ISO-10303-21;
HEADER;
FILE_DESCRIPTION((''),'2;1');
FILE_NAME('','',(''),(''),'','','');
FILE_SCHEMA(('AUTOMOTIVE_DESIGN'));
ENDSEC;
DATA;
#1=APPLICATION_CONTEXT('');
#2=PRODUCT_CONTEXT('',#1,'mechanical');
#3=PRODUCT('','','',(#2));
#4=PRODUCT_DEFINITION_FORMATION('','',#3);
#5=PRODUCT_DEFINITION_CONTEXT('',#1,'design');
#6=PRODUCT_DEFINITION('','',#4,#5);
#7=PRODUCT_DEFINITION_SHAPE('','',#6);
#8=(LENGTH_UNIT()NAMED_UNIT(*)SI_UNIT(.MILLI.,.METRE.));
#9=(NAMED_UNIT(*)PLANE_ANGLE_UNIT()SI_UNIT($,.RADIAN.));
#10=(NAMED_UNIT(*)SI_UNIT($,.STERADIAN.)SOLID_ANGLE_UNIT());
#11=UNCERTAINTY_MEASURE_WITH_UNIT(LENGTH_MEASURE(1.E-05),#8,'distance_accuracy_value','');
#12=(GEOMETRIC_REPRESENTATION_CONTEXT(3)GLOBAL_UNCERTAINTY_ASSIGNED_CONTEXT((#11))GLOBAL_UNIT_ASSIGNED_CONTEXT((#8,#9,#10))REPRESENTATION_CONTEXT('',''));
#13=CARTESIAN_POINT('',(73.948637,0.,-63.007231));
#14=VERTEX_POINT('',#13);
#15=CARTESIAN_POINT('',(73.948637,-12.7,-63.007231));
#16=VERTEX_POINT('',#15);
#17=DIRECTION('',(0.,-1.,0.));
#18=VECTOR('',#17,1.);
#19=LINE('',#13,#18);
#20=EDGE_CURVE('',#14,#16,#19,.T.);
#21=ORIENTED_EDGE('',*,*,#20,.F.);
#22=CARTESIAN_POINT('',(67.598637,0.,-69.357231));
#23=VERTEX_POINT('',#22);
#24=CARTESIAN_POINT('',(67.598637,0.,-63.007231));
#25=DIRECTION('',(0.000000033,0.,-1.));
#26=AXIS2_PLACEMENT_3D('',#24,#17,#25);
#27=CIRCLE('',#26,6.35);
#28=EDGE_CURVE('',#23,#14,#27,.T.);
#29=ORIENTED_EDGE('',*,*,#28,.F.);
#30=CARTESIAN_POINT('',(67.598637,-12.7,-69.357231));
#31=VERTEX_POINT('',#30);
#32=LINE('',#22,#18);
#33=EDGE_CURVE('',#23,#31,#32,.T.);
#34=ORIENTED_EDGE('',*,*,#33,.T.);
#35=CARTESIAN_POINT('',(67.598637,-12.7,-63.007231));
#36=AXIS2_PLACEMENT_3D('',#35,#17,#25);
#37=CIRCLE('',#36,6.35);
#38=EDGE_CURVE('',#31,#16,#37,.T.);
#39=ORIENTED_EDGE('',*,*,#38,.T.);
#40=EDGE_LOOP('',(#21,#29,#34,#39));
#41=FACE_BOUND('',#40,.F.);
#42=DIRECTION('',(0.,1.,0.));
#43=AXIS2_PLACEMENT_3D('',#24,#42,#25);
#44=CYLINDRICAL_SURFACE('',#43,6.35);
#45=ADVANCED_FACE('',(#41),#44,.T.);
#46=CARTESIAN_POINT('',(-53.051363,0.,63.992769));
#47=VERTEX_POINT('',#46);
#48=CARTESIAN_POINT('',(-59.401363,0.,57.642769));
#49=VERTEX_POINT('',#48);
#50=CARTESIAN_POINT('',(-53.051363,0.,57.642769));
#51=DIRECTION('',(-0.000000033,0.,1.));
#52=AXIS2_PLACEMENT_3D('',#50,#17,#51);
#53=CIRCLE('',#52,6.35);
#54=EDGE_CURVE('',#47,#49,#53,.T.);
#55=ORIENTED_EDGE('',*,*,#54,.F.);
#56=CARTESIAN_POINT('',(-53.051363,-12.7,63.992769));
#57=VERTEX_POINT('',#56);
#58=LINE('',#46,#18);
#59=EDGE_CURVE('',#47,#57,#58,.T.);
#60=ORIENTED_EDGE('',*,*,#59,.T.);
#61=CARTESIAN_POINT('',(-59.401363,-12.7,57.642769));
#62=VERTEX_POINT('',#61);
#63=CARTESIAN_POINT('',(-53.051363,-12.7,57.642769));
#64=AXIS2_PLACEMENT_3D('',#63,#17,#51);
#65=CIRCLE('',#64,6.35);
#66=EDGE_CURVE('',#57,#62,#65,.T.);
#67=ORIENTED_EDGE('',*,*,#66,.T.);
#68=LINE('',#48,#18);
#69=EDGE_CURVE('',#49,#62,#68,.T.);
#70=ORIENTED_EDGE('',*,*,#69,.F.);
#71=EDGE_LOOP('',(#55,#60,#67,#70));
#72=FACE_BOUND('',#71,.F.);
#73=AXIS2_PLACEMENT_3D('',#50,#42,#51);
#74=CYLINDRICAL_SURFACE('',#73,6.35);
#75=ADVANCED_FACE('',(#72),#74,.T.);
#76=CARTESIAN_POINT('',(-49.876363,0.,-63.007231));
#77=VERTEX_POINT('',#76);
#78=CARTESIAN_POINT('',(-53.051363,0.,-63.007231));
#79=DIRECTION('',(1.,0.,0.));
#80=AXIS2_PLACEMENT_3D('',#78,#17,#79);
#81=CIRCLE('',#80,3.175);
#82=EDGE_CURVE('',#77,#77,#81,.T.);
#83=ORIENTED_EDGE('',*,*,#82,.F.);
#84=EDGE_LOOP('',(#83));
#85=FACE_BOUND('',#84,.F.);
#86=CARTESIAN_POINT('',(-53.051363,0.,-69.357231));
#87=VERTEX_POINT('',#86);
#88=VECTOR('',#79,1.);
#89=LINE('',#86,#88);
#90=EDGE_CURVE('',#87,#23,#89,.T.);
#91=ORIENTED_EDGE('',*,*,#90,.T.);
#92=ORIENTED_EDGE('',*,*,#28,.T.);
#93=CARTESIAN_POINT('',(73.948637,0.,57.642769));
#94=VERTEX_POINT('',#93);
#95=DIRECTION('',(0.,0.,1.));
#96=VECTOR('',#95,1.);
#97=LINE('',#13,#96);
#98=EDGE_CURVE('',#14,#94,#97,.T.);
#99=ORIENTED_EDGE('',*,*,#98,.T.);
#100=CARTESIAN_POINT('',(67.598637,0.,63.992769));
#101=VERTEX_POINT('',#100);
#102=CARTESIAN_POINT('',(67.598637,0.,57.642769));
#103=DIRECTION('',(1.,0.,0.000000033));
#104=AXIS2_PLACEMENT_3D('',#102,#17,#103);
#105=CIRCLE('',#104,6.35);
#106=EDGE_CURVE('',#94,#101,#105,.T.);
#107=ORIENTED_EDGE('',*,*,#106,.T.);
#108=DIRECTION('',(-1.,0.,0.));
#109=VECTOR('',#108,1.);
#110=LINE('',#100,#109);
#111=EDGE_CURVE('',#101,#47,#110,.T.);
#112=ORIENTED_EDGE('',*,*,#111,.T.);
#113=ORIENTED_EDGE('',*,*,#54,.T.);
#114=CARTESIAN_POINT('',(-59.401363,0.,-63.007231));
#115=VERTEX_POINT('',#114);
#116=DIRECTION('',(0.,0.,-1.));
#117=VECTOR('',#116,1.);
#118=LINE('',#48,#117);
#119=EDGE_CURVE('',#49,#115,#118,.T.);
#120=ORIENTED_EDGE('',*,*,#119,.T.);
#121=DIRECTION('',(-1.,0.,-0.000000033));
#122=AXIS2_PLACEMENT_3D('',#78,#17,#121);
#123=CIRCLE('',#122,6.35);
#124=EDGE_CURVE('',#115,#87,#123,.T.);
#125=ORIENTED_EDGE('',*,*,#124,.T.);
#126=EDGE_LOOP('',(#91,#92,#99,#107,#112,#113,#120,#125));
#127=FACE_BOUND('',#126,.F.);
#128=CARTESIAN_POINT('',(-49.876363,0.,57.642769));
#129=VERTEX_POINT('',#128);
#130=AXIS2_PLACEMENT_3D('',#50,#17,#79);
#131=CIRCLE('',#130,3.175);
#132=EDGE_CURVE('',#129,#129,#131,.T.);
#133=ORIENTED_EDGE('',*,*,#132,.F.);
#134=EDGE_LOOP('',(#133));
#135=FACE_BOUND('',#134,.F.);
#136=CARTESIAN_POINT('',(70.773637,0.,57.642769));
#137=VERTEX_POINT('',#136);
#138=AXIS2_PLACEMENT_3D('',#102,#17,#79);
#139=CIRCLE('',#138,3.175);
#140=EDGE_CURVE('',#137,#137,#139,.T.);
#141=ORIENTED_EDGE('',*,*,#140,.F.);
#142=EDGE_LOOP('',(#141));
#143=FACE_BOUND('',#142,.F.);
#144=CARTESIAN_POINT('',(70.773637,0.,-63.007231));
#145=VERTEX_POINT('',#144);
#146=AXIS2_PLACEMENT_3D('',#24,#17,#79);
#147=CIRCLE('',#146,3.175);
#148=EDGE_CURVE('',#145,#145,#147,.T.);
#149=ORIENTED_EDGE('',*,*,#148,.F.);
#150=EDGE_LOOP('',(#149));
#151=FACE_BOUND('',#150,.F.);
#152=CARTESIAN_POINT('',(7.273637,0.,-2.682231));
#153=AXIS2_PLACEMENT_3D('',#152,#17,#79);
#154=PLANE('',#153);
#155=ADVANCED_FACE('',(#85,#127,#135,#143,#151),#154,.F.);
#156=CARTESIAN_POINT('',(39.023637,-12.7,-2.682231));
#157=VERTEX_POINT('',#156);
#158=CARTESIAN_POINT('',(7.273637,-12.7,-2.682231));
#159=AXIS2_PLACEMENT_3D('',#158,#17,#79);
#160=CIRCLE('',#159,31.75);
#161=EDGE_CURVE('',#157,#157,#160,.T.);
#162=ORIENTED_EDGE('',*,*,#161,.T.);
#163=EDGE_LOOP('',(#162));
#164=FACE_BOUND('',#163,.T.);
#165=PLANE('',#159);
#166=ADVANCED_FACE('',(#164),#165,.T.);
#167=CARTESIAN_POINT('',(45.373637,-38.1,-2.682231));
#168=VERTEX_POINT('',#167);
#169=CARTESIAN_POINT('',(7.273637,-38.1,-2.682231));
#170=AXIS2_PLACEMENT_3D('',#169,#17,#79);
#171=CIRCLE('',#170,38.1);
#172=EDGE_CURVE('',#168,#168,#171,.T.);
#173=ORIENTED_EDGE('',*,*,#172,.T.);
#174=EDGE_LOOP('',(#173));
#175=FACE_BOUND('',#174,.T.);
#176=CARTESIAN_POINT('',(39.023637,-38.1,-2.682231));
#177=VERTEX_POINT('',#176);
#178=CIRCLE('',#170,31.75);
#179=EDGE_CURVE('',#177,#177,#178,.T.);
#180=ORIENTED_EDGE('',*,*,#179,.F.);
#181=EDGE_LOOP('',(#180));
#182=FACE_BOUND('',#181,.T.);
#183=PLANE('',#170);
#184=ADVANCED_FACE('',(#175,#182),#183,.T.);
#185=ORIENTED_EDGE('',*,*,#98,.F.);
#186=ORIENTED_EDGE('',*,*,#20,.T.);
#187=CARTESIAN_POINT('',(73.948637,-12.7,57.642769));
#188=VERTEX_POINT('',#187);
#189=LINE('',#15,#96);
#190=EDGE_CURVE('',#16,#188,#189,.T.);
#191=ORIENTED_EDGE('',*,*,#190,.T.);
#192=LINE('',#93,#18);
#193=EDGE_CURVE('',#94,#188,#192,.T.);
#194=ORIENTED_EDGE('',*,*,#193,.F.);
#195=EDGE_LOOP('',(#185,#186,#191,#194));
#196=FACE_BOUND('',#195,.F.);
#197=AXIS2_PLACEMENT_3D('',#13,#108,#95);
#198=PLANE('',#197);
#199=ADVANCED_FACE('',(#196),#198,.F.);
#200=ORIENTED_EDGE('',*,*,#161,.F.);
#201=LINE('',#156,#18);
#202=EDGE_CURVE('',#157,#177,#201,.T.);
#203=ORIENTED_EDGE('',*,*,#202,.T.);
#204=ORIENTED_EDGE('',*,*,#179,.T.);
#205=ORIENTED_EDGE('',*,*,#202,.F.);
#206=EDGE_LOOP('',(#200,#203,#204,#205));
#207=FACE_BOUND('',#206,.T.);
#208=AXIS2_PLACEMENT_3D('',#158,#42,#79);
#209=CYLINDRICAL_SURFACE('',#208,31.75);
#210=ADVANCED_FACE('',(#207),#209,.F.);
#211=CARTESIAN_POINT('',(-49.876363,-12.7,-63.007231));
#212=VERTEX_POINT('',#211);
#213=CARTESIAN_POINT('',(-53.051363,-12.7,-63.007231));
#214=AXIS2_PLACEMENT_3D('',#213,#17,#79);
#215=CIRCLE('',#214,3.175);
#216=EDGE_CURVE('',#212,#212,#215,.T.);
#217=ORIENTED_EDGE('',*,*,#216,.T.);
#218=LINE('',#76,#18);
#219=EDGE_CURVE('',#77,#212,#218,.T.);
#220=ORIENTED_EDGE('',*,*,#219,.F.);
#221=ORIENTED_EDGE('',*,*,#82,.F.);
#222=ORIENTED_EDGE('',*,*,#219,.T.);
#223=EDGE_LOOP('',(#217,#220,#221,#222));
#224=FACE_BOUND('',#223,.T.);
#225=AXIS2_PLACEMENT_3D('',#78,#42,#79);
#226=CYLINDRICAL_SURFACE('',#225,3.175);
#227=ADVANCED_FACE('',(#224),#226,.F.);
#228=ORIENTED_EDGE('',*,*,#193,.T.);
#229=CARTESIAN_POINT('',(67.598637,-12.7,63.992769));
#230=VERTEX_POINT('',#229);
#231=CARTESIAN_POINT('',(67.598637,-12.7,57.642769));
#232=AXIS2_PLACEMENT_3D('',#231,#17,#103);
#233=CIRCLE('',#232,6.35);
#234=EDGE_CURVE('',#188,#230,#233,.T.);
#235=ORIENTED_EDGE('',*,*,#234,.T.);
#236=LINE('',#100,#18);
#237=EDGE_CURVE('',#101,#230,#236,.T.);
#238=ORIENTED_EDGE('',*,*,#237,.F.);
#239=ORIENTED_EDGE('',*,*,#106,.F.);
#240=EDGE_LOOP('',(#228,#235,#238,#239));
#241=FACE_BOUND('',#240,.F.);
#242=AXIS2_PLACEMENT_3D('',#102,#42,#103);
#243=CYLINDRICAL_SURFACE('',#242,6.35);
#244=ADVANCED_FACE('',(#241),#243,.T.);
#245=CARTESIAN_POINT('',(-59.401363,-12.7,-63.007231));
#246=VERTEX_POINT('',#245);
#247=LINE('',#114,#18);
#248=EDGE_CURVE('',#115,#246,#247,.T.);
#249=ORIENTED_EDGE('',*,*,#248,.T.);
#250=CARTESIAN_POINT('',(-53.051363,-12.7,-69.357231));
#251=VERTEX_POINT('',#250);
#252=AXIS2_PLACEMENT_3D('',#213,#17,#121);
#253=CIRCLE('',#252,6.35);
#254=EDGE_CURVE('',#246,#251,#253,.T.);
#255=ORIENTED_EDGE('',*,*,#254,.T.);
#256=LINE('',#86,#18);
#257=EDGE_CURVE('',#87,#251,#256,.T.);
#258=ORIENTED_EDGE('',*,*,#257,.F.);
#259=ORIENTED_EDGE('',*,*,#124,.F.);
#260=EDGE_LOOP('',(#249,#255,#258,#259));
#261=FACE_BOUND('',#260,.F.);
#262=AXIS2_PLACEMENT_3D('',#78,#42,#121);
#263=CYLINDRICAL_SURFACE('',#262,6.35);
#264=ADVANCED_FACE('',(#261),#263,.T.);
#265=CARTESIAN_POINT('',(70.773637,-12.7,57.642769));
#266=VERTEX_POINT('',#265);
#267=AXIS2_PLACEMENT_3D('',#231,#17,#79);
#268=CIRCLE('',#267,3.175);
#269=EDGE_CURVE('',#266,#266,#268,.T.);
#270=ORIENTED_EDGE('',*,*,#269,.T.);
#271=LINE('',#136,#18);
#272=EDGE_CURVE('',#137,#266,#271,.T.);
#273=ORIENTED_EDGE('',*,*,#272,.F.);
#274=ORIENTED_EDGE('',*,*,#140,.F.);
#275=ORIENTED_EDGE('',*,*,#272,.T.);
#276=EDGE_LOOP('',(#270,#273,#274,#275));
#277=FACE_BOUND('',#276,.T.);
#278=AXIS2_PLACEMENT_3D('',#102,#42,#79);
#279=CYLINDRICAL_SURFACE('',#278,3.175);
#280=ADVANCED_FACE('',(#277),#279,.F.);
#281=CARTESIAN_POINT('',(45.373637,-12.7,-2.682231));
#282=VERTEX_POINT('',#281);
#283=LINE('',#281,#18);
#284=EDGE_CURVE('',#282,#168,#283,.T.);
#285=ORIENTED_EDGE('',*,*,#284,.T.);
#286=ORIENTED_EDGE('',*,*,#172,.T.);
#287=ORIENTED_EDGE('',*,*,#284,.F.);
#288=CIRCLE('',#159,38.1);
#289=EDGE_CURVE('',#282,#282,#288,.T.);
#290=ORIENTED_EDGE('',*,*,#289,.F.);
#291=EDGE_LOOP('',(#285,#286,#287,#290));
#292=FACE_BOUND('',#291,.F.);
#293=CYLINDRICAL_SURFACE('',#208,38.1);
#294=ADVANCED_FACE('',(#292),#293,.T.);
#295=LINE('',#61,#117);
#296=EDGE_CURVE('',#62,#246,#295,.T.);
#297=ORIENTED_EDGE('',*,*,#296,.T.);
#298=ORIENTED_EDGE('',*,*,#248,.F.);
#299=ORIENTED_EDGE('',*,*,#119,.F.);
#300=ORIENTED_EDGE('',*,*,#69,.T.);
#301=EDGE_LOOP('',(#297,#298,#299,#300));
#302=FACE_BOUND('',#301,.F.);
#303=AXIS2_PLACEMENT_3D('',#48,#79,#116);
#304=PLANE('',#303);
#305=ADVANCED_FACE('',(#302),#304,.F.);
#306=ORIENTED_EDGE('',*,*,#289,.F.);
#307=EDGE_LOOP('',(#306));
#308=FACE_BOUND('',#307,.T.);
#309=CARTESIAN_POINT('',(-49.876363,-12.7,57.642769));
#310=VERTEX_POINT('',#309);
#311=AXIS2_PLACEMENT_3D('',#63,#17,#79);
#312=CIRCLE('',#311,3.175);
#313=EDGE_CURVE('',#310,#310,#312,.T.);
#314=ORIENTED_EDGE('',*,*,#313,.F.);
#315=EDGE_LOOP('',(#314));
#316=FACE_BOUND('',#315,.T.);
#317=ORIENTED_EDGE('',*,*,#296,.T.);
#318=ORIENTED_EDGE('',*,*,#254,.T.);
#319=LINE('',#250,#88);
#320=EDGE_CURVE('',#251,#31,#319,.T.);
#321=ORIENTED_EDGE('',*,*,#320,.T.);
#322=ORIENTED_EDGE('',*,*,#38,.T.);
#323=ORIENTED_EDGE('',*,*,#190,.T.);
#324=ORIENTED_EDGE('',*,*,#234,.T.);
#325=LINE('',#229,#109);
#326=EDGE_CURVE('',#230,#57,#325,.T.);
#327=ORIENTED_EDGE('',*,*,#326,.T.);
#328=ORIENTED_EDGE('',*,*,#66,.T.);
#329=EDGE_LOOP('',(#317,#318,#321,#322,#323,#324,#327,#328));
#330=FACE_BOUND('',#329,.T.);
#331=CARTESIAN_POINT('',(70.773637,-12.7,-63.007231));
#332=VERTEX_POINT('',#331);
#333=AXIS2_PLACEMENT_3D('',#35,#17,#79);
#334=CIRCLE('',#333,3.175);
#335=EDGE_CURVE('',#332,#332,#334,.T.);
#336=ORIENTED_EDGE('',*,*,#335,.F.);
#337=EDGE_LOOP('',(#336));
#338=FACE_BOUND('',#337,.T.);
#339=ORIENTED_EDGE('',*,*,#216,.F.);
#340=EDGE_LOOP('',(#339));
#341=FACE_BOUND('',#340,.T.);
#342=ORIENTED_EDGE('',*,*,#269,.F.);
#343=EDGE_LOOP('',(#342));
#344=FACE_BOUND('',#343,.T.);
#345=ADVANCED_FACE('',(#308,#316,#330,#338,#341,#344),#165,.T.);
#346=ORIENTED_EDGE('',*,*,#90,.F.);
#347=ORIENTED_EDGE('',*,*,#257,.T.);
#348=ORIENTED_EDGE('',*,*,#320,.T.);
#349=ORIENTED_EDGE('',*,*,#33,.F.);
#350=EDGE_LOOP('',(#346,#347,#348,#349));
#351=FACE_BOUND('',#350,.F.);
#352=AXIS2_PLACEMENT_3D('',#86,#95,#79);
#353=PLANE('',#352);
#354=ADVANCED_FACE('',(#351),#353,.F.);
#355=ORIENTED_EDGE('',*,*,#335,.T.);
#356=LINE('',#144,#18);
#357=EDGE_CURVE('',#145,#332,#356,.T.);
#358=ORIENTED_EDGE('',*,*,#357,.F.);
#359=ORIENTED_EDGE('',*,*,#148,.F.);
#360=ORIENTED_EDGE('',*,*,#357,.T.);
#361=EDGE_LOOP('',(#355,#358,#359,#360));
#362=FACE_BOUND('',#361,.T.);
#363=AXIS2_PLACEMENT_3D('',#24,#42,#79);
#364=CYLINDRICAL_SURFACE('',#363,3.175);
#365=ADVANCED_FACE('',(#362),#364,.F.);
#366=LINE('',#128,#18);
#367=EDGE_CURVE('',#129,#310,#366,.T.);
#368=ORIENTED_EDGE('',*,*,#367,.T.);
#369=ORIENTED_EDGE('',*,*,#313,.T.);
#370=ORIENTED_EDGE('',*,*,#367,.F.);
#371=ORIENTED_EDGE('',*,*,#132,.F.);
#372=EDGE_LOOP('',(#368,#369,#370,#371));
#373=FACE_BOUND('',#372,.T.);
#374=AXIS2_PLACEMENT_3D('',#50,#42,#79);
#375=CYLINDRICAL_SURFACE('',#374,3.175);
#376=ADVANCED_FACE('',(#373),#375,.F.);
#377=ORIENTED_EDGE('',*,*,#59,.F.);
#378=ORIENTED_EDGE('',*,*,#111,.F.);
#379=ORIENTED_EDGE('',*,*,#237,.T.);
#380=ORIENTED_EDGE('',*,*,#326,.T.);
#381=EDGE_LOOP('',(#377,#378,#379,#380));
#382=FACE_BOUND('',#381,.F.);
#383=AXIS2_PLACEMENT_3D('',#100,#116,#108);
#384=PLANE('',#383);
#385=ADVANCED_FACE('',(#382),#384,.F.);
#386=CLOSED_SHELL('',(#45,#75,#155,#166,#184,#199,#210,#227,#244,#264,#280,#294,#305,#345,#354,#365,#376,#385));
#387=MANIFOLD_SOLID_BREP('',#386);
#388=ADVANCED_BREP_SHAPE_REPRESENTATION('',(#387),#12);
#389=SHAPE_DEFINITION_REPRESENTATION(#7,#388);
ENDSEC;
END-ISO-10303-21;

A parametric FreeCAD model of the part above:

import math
import FreeCAD as App
import Part
import Sketcher
Q = App.Units.Quantity

doc = App.newDocument("Part")
params = doc.addObject("Spreadsheet::Sheet", "Params")
for row, (alias, value) in enumerate([
    ("sketch1_diameter", "0.25 in"),
    ("sketch1_radius", "0.25 in"),
    ("pad1_length", "0.5 in"),
    ("sketch2_diameter", "3 in"),
    ("sketch2_diameter2", "2.5 in"),
    ("pad2_length", "1 in"),
], start=1):
    params.set(f"A{row}", alias)
    params.set(f"B{row}", "=" + value)
    params.setAlias(f"B{row}", alias)

body = doc.addObject("PartDesign::Body", "Body")

# Sketch on XZ plane
sketch1 = doc.addObject("Sketcher::SketchObject", "Sketch")
body.addObject(sketch1)
sketch1.AttachmentSupport = (doc.XZ_Plane, [""])
sketch1.MapMode = "FlatFace"
sketch1.addGeometry([
    Part.LineSegment(App.Vector(67.6, 64, 0), App.Vector(-53.1, 64, 0)),  # 0
    Part.ArcOfCircle(Part.Circle(App.Vector(-53.1, 57.6, 0), App.Vector(0, 0, 1), 6.4), math.radians(90), math.radians(180)),  # 1
    Part.LineSegment(App.Vector(-59.4, 57.6, 0), App.Vector(-59.4, -63, 0)),  # 2
    Part.ArcOfCircle(Part.Circle(App.Vector(-53.1, -63, 0), App.Vector(0, 0, 1), 6.4), math.radians(-180), math.radians(-90)),  # 3
    Part.LineSegment(App.Vector(-53.1, -69.4, 0), App.Vector(67.6, -69.4, 0)),  # 4
    Part.ArcOfCircle(Part.Circle(App.Vector(67.6, -63, 0), App.Vector(0, 0, 1), 6.4), math.radians(-90), math.radians(0)),  # 5
    Part.LineSegment(App.Vector(73.9, -63, 0), App.Vector(73.9, 57.6, 0)),  # 6
    Part.ArcOfCircle(Part.Circle(App.Vector(67.6, 57.6, 0), App.Vector(0, 0, 1), 6.4), math.radians(0), math.radians(90)),  # 7
    Part.Circle(App.Vector(-53.1, -63, 0), App.Vector(0, 0, 1), 3.2),  # 8
    Part.Circle(App.Vector(67.6, -63, 0), App.Vector(0, 0, 1), 3.2),  # 9
    Part.Circle(App.Vector(-53.1, 57.6, 0), App.Vector(0, 0, 1), 3.2),  # 10
    Part.Circle(App.Vector(67.6, 57.6, 0), App.Vector(0, 0, 1), 3.2),  # 11
], False)
sketch1.addConstraint([
    Sketcher.Constraint("Tangent", 0, 2, 1, 1),
    Sketcher.Constraint("Tangent", 1, 2, 2, 1),
    Sketcher.Constraint("Tangent", 2, 2, 3, 1),
    Sketcher.Constraint("Tangent", 3, 2, 4, 1),
    Sketcher.Constraint("Tangent", 4, 2, 5, 1),
    Sketcher.Constraint("Tangent", 5, 2, 6, 1),
    Sketcher.Constraint("Tangent", 6, 2, 7, 1),
    Sketcher.Constraint("Tangent", 7, 2, 0, 1),
    Sketcher.Constraint("Horizontal", 0),
    Sketcher.Constraint("Vertical", 2),
    Sketcher.Constraint("Horizontal", 4),
    Sketcher.Constraint("Vertical", 6),
    Sketcher.Constraint("Coincident", 8, 3, 3, 3),
    Sketcher.Constraint("Coincident", 9, 3, 5, 3),
    Sketcher.Constraint("Coincident", 10, 3, 1, 3),
    Sketcher.Constraint("Coincident", 11, 3, 7, 3),
    Sketcher.Constraint("Equal", 1, 3),
    Sketcher.Constraint("Equal", 3, 5),
    Sketcher.Constraint("Equal", 5, 7),
    Sketcher.Constraint("Equal", 8, 9),
    Sketcher.Constraint("Equal", 9, 10),
    Sketcher.Constraint("Equal", 10, 11),
    Sketcher.Constraint("Equal", 4, 2),
    Sketcher.Constraint("Diameter", 8, Q("0.25 in")),
    Sketcher.Constraint("Radius", 1, Q("0.25 in")),
    Sketcher.Constraint("DistanceY", 3, 3, 0, 2, Q("5 in")),
    Sketcher.Constraint("DistanceY", -1, 1, 1, 3, 57.642769),
    Sketcher.Constraint("DistanceX", 1, 3, -1, 1, 53.051363),
])
sketch1.setExpression("Constraints[23]", "Params.sketch1_diameter")
sketch1.setExpression("Constraints[24]", "Params.sketch1_radius")
pad1 = doc.addObject("PartDesign::Pad", "Pad")
body.addObject(pad1)
pad1.Profile = sketch1
pad1.setExpression("Length", "Params.pad1_length")

# Sketch on XZ plane
sketch2 = doc.addObject("Sketcher::SketchObject", "Sketch001")
body.addObject(sketch2)
sketch2.AttachmentSupport = (doc.XZ_Plane, [""])
sketch2.MapMode = "FlatFace"
sketch2.AttachmentOffset = App.Placement(App.Vector(0, 0, 0.5 * 25.4), App.Rotation())
sketch2.addGeometry([
    Part.Circle(App.Vector(7, -3, 0), App.Vector(0, 0, 1), 38),
    Part.Circle(App.Vector(7, -3, 0), App.Vector(0, 0, 1), 32),
], False)
sketch2.addConstraint([
    Sketcher.Constraint("Coincident", 1, 3, 0, 3),
    Sketcher.Constraint("Diameter", 0, Q("3 in")),
    Sketcher.Constraint("Diameter", 1, Q("2.5 in")),
    Sketcher.Constraint("DistanceY", 0, 3, -1, 1, 2.682231),
    Sketcher.Constraint("DistanceX", -1, 1, 0, 3, 7.273637),
])
sketch2.setExpression("Constraints[1]", "Params.sketch2_diameter")
sketch2.setExpression("Constraints[2]", "Params.sketch2_diameter2")
pad2 = doc.addObject("PartDesign::Pad", "Pad001")
body.addObject(pad2)
pad2.Profile = sketch2
pad2.setExpression("Length", "Params.pad2_length")

doc.recompute()
